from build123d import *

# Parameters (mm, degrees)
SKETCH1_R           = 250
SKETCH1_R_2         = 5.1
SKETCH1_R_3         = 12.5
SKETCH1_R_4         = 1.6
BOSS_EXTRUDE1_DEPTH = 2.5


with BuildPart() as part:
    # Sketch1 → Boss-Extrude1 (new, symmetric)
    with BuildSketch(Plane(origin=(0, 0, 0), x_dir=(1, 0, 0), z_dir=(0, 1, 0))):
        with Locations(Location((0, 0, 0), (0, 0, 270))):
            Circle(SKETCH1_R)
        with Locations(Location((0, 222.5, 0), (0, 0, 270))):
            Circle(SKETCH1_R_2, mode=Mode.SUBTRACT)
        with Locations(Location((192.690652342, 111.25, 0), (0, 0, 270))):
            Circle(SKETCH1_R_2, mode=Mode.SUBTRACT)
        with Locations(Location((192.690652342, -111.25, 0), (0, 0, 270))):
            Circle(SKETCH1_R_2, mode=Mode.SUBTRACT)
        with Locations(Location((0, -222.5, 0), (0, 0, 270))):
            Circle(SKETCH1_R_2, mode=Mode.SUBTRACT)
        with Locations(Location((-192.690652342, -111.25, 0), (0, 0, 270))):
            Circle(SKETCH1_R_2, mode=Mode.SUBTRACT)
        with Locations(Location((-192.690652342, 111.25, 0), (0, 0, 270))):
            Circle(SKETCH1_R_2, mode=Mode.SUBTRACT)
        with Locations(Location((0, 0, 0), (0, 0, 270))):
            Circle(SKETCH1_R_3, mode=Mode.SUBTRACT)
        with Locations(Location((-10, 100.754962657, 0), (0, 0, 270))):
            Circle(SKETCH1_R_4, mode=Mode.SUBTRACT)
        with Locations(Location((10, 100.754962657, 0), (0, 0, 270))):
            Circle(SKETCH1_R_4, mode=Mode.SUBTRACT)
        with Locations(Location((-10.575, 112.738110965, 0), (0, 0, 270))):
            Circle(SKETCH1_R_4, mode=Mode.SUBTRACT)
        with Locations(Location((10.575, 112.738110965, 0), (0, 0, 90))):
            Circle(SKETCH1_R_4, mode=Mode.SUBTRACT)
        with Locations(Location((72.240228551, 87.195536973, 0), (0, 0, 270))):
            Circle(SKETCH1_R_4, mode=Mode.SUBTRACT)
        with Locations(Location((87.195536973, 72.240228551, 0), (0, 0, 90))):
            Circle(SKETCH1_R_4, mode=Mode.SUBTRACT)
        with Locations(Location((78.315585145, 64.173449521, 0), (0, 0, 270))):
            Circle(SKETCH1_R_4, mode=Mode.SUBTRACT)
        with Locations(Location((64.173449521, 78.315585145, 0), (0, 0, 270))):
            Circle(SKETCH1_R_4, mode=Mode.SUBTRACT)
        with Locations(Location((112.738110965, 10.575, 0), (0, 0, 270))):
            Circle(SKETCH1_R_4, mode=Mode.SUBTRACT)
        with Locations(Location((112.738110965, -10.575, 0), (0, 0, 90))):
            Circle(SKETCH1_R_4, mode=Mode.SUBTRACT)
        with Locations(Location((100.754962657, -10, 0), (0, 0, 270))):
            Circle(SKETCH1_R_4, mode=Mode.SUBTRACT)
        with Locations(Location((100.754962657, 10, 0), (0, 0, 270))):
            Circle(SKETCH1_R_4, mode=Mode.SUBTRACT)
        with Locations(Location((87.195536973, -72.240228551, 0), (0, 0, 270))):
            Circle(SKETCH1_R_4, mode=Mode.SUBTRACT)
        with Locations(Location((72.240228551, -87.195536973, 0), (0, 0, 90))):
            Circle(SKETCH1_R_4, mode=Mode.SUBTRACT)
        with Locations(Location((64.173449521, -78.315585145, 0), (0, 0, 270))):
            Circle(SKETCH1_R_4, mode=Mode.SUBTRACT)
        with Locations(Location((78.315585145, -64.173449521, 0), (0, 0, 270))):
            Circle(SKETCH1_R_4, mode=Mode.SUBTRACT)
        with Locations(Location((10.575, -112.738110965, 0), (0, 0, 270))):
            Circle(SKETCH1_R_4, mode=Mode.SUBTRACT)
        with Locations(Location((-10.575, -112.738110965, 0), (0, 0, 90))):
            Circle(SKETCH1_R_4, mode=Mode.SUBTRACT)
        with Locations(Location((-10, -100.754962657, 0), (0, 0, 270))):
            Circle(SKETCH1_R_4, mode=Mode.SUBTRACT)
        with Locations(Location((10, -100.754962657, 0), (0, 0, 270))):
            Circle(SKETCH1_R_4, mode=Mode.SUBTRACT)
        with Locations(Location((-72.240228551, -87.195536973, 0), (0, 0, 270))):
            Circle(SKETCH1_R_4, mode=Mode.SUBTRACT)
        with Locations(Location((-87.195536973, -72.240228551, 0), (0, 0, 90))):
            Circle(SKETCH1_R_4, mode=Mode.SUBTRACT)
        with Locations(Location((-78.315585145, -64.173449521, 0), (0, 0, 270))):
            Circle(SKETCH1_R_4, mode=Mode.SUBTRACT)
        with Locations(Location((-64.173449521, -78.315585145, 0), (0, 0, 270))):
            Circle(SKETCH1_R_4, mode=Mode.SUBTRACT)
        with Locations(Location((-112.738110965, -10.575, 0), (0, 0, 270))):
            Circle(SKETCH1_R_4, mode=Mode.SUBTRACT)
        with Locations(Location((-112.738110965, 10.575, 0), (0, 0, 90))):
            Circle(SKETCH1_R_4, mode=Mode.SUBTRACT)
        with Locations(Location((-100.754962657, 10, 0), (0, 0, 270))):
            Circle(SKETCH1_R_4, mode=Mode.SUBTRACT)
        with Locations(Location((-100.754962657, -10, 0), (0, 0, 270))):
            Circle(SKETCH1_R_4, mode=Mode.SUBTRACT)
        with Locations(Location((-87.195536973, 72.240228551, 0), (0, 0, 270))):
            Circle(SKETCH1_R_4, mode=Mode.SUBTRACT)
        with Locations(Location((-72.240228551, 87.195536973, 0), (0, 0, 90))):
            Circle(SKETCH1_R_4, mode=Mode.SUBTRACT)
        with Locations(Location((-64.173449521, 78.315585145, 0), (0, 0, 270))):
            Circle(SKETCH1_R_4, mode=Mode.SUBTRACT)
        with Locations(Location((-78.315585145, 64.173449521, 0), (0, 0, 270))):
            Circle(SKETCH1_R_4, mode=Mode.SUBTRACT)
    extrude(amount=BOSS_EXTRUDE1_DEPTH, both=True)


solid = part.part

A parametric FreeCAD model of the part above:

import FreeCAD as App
import Part
import Sketcher
Q = App.Units.Quantity

doc = App.newDocument("Part")
body = doc.addObject("PartDesign::Body", "Body")

# Sketch on XZ plane
sketch1 = body.newObject("Sketcher::SketchObject", "Sketch")
sketch1.AttachmentSupport = (doc.getObject("XZ_Plane"), [""])
sketch1.MapMode = "FlatFace"
sketch1.addGeometry([
    Part.Circle(App.Vector(0, 0, 0), App.Vector(0, 0, 1), 250),  # 0
    Part.Circle(App.Vector(-192.690652, -111.25, 0), App.Vector(0, 0, 1), 5.1),  # 1
    Part.Circle(App.Vector(-112.738111, -10.575, 0), App.Vector(0, 0, 1), 1.6),  # 2
    Part.Circle(App.Vector(-100.754963, -10, 0), App.Vector(0, 0, 1), 1.6),  # 3
    Part.Circle(App.Vector(0, -222.5, 0), App.Vector(0, 0, 1), 5.1),  # 4
    Part.Circle(App.Vector(-87.195537, -72.240229, 0), App.Vector(0, 0, 1), 1.6),  # 5
    Part.Circle(App.Vector(-78.315585, -64.17345, 0), App.Vector(0, 0, 1), 1.6),  # 6
    Part.Circle(App.Vector(-72.240229, -87.195537, 0), App.Vector(0, 0, 1), 1.6),  # 7
    Part.Circle(App.Vector(-64.17345, -78.315585, 0), App.Vector(0, 0, 1), 1.6),  # 8
    Part.Circle(App.Vector(-10.575, -112.738111, 0), App.Vector(0, 0, 1), 1.6),  # 9
    Part.Circle(App.Vector(-10, -100.754963, 0), App.Vector(0, 0, 1), 1.6),  # 10
    Part.Circle(App.Vector(-192.690652, 111.25, 0), App.Vector(0, 0, 1), 5.1),  # 11
    Part.Circle(App.Vector(-112.738111, 10.575, 0), App.Vector(0, 0, 1), 1.6),  # 12
    Part.Circle(App.Vector(-100.754963, 10, 0), App.Vector(0, 0, 1), 1.6),  # 13
    Part.Circle(App.Vector(-87.195537, 72.240229, 0), App.Vector(0, 0, 1), 1.6),  # 14
    Part.Circle(App.Vector(-78.315585, 64.17345, 0), App.Vector(0, 0, 1), 1.6),  # 15
    Part.Circle(App.Vector(-64.17345, 78.315585, 0), App.Vector(0, 0, 1), 1.6),  # 16
    Part.Circle(App.Vector(-72.240229, 87.195537, 0), App.Vector(0, 0, 1), 1.6),  # 17
    Part.Circle(App.Vector(-10, 100.754963, 0), App.Vector(0, 0, 1), 1.6),  # 18
    Part.Circle(App.Vector(-10.575, 112.738111, 0), App.Vector(0, 0, 1), 1.6),  # 19
    Part.Circle(App.Vector(10.575, -112.738111, 0), App.Vector(0, 0, 1), 1.6),  # 20
    Part.Circle(App.Vector(10, -100.754963, 0), App.Vector(0, 0, 1), 1.6),  # 21
    Part.Circle(App.Vector(72.240229, -87.195537, 0), App.Vector(0, 0, 1), 1.6),  # 22
    Part.Circle(App.Vector(64.17345, -78.315585, 0), App.Vector(0, 0, 1), 1.6),  # 23
    Part.Circle(App.Vector(78.315585, -64.17345, 0), App.Vector(0, 0, 1), 1.6),  # 24
    Part.Circle(App.Vector(87.195537, -72.240229, 0), App.Vector(0, 0, 1), 1.6),  # 25
    Part.Circle(App.Vector(100.754963, -10, 0), App.Vector(0, 0, 1), 1.6),  # 26
    Part.Circle(App.Vector(112.738111, -10.575, 0), App.Vector(0, 0, 1), 1.6),  # 27
    Part.Circle(App.Vector(192.690652, -111.25, 0), App.Vector(0, 0, 1), 5.1),  # 28
    Part.Circle(App.Vector(0, 0, 0), App.Vector(0, 0, 1), 12.5),  # 29
    Part.Circle(App.Vector(10, 100.754963, 0), App.Vector(0, 0, 1), 1.6),  # 30
    Part.Circle(App.Vector(10.575, 112.738111, 0), App.Vector(0, 0, 1), 1.6),  # 31
    Part.Circle(App.Vector(64.17345, 78.315585, 0), App.Vector(0, 0, 1), 1.6),  # 32
    Part.Circle(App.Vector(72.240229, 87.195537, 0), App.Vector(0, 0, 1), 1.6),  # 33
    Part.Circle(App.Vector(78.315585, 64.17345, 0), App.Vector(0, 0, 1), 1.6),  # 34
    Part.Circle(App.Vector(87.195537, 72.240229, 0), App.Vector(0, 0, 1), 1.6),  # 35
    Part.Circle(App.Vector(0, 222.5, 0), App.Vector(0, 0, 1), 5.1),  # 36
    Part.Circle(App.Vector(100.754963, 10, 0), App.Vector(0, 0, 1), 1.6),  # 37
    Part.Circle(App.Vector(112.738111, 10.575, 0), App.Vector(0, 0, 1), 1.6),  # 38
    Part.Circle(App.Vector(192.690652, 111.25, 0), App.Vector(0, 0, 1), 5.1),  # 39
], False)
sketch1.addConstraint([
    Sketcher.Constraint("Coincident", 0, 3, -1, 1),
    Sketcher.Constraint("Coincident", 29, 3, -1, 1),
    Sketcher.Constraint("Equal", 2, 3),
    Sketcher.Constraint("Equal", 1, 4),
    Sketcher.Constraint("Equal", 3, 5),
    Sketcher.Constraint("Equal", 5, 6),
    Sketcher.Constraint("Equal", 6, 7),
    Sketcher.Constraint("Equal", 7, 8),
    Sketcher.Constraint("Equal", 8, 9),
    Sketcher.Constraint("Equal", 9, 10),
    Sketcher.Constraint("Equal", 4, 11),
    Sketcher.Constraint("Equal", 10, 12),
    Sketcher.Constraint("Equal", 12, 13),
    Sketcher.Constraint("Equal", 13, 14),
    Sketcher.Constraint("Equal", 14, 15),
    Sketcher.Constraint("Equal", 15, 16),
    Sketcher.Constraint("Equal", 16, 17),
    Sketcher.Constraint("Equal", 17, 18),
    Sketcher.Constraint("Equal", 18, 19),
    Sketcher.Constraint("Equal", 19, 20),
    Sketcher.Constraint("Equal", 20, 21),
    Sketcher.Constraint("Equal", 21, 22),
    Sketcher.Constraint("Equal", 22, 23),
    Sketcher.Constraint("Equal", 23, 24),
    Sketcher.Constraint("Equal", 24, 25),
    Sketcher.Constraint("Equal", 25, 26),
    Sketcher.Constraint("Equal", 26, 27),
    Sketcher.Constraint("Equal", 11, 28),
    Sketcher.Constraint("Equal", 27, 30),
    Sketcher.Constraint("Equal", 30, 31),
    Sketcher.Constraint("Equal", 31, 32),
    Sketcher.Constraint("Equal", 32, 33),
    Sketcher.Constraint("Equal", 33, 34),
    Sketcher.Constraint("Equal", 34, 35),
    Sketcher.Constraint("Equal", 28, 36),
    Sketcher.Constraint("Equal", 35, 37),
    Sketcher.Constraint("Equal", 37, 38),
    Sketcher.Constraint("Equal", 36, 39),
    Sketcher.Constraint("Symmetric", 19, 3, 20, 3, -1, 1),
    Sketcher.Constraint("Symmetric", 18, 3, 21, 3, -1, 1),
    Sketcher.Constraint("Symmetric", 17, 3, 22, 3, -1, 1),
    Sketcher.Constraint("Symmetric", 16, 3, 23, 3, -1, 1),
    Sketcher.Constraint("Symmetric", 15, 3, 24, 3, -1, 1),
    Sketcher.Constraint("Symmetric", 14, 3, 25, 3, -1, 1),
    Sketcher.Constraint("Symmetric", 13, 3, 26, 3, -1, 1),
    Sketcher.Constraint("Symmetric", 12, 3, 27, 3, -1, 1),
    Sketcher.Constraint("Symmetric", 11, 3, 28, 3, -1, 1),
    Sketcher.Constraint("Symmetric", 10, 3, 30, 3, -1, 1),
    Sketcher.Constraint("Symmetric", 9, 3, 31, 3, -1, 1),
    Sketcher.Constraint("Symmetric", 8, 3, 32, 3, -1, 1),
    Sketcher.Constraint("Symmetric", 7, 3, 33, 3, -1, 1),
    Sketcher.Constraint("Symmetric", 6, 3, 34, 3, -1, 1),
    Sketcher.Constraint("Symmetric", 5, 3, 35, 3, -1, 1),
    Sketcher.Constraint("Symmetric", 4, 3, 36, 3, -1, 1),
    Sketcher.Constraint("Symmetric", 3, 3, 37, 3, -1, 1),
    Sketcher.Constraint("Symmetric", 2, 3, 38, 3, -1, 1),
    Sketcher.Constraint("Symmetric", 1, 3, 39, 3, -1, 1),
    Sketcher.Constraint("Symmetric", 9, 3, 20, 3, -2),
    Sketcher.Constraint("Symmetric", 10, 3, 21, 3, -2),
    Sketcher.Constraint("Symmetric", 7, 3, 22, 3, -2),
    Sketcher.Constraint("Symmetric", 8, 3, 23, 3, -2),
    Sketcher.Constraint("Symmetric", 6, 3, 24, 3, -2),
    Sketcher.Constraint("Symmetric", 5, 3, 25, 3, -2),
    Sketcher.Constraint("Symmetric", 3, 3, 26, 3, -2),
    Sketcher.Constraint("Symmetric", 2, 3, 27, 3, -2),
    Sketcher.Constraint("Symmetric", 1, 3, 28, 3, -2),
    Sketcher.Constraint("PointOnObject", 4, 3, -2),
    Sketcher.Constraint("Diameter", 0, Q("500 mm")),
    Sketcher.Constraint("Diameter", 29, Q("25 mm")),
    Sketcher.Constraint("Diameter", 1, Q("10.2 mm")),
    Sketcher.Constraint("Diameter", 2, Q("3.2 mm")),
    Sketcher.Constraint("DistanceY", 3, 3, -1, 1, Q("10 mm")),
    Sketcher.Constraint("DistanceX", 10, 3, -1, 1, Q("10 mm")),
    Sketcher.Constraint("DistanceY", 4, 3, -1, 1, Q("222.5 mm")),
    Sketcher.Constraint("DistanceY", 1, 3, -1, 1, Q("111.25 mm")),
    Sketcher.Constraint("DistanceY", 2, 3, 12, 3, Q("21.15 mm")),
    Sketcher.Constraint("DistanceX", 9, 3, 20, 3, Q("21.15 mm")),
    Sketcher.Constraint("DistanceX", 2, 3, -1, 1, Q("112.738111 mm")),
    Sketcher.Constraint("DistanceY", 5, 3, -1, 1, Q("72.240229 mm")),
    Sketcher.Constraint("DistanceY", 6, 3, -1, 1, Q("64.17345 mm")),
    Sketcher.Constraint("DistanceX", 7, 3, -1, 1, Q("72.240229 mm")),
    Sketcher.Constraint("DistanceX", 8, 3, -1, 1, Q("64.17345 mm")),
    Sketcher.Constraint("DistanceY", 9, 3, -1, 1, Q("112.738111 mm")),
    Sketcher.Constraint("DistanceX", 1, 3, 2, 3, Q("79.952541 mm")),
    Sketcher.Constraint("DistanceX", 2, 3, 3, 3, Q("11.983148 mm")),
    Sketcher.Constraint("DistanceX", 5, 3, 6, 3, Q("8.879952 mm")),
    Sketcher.Constraint("DistanceX", 5, 3, 7, 3, Q("14.955308 mm")),
    Sketcher.Constraint("DistanceY", 7, 3, 5, 3, Q("14.955308 mm")),
    Sketcher.Constraint("DistanceY", 7, 3, 8, 3, Q("8.879952 mm")),
    Sketcher.Constraint("DistanceY", 9, 3, 10, 3, Q("11.983148 mm")),
])
pad1 = body.newObject("PartDesign::Pad", "Pad")
pad1.Profile = sketch1
pad1.Length = 5
pad1.Midplane = True

doc.recompute()
